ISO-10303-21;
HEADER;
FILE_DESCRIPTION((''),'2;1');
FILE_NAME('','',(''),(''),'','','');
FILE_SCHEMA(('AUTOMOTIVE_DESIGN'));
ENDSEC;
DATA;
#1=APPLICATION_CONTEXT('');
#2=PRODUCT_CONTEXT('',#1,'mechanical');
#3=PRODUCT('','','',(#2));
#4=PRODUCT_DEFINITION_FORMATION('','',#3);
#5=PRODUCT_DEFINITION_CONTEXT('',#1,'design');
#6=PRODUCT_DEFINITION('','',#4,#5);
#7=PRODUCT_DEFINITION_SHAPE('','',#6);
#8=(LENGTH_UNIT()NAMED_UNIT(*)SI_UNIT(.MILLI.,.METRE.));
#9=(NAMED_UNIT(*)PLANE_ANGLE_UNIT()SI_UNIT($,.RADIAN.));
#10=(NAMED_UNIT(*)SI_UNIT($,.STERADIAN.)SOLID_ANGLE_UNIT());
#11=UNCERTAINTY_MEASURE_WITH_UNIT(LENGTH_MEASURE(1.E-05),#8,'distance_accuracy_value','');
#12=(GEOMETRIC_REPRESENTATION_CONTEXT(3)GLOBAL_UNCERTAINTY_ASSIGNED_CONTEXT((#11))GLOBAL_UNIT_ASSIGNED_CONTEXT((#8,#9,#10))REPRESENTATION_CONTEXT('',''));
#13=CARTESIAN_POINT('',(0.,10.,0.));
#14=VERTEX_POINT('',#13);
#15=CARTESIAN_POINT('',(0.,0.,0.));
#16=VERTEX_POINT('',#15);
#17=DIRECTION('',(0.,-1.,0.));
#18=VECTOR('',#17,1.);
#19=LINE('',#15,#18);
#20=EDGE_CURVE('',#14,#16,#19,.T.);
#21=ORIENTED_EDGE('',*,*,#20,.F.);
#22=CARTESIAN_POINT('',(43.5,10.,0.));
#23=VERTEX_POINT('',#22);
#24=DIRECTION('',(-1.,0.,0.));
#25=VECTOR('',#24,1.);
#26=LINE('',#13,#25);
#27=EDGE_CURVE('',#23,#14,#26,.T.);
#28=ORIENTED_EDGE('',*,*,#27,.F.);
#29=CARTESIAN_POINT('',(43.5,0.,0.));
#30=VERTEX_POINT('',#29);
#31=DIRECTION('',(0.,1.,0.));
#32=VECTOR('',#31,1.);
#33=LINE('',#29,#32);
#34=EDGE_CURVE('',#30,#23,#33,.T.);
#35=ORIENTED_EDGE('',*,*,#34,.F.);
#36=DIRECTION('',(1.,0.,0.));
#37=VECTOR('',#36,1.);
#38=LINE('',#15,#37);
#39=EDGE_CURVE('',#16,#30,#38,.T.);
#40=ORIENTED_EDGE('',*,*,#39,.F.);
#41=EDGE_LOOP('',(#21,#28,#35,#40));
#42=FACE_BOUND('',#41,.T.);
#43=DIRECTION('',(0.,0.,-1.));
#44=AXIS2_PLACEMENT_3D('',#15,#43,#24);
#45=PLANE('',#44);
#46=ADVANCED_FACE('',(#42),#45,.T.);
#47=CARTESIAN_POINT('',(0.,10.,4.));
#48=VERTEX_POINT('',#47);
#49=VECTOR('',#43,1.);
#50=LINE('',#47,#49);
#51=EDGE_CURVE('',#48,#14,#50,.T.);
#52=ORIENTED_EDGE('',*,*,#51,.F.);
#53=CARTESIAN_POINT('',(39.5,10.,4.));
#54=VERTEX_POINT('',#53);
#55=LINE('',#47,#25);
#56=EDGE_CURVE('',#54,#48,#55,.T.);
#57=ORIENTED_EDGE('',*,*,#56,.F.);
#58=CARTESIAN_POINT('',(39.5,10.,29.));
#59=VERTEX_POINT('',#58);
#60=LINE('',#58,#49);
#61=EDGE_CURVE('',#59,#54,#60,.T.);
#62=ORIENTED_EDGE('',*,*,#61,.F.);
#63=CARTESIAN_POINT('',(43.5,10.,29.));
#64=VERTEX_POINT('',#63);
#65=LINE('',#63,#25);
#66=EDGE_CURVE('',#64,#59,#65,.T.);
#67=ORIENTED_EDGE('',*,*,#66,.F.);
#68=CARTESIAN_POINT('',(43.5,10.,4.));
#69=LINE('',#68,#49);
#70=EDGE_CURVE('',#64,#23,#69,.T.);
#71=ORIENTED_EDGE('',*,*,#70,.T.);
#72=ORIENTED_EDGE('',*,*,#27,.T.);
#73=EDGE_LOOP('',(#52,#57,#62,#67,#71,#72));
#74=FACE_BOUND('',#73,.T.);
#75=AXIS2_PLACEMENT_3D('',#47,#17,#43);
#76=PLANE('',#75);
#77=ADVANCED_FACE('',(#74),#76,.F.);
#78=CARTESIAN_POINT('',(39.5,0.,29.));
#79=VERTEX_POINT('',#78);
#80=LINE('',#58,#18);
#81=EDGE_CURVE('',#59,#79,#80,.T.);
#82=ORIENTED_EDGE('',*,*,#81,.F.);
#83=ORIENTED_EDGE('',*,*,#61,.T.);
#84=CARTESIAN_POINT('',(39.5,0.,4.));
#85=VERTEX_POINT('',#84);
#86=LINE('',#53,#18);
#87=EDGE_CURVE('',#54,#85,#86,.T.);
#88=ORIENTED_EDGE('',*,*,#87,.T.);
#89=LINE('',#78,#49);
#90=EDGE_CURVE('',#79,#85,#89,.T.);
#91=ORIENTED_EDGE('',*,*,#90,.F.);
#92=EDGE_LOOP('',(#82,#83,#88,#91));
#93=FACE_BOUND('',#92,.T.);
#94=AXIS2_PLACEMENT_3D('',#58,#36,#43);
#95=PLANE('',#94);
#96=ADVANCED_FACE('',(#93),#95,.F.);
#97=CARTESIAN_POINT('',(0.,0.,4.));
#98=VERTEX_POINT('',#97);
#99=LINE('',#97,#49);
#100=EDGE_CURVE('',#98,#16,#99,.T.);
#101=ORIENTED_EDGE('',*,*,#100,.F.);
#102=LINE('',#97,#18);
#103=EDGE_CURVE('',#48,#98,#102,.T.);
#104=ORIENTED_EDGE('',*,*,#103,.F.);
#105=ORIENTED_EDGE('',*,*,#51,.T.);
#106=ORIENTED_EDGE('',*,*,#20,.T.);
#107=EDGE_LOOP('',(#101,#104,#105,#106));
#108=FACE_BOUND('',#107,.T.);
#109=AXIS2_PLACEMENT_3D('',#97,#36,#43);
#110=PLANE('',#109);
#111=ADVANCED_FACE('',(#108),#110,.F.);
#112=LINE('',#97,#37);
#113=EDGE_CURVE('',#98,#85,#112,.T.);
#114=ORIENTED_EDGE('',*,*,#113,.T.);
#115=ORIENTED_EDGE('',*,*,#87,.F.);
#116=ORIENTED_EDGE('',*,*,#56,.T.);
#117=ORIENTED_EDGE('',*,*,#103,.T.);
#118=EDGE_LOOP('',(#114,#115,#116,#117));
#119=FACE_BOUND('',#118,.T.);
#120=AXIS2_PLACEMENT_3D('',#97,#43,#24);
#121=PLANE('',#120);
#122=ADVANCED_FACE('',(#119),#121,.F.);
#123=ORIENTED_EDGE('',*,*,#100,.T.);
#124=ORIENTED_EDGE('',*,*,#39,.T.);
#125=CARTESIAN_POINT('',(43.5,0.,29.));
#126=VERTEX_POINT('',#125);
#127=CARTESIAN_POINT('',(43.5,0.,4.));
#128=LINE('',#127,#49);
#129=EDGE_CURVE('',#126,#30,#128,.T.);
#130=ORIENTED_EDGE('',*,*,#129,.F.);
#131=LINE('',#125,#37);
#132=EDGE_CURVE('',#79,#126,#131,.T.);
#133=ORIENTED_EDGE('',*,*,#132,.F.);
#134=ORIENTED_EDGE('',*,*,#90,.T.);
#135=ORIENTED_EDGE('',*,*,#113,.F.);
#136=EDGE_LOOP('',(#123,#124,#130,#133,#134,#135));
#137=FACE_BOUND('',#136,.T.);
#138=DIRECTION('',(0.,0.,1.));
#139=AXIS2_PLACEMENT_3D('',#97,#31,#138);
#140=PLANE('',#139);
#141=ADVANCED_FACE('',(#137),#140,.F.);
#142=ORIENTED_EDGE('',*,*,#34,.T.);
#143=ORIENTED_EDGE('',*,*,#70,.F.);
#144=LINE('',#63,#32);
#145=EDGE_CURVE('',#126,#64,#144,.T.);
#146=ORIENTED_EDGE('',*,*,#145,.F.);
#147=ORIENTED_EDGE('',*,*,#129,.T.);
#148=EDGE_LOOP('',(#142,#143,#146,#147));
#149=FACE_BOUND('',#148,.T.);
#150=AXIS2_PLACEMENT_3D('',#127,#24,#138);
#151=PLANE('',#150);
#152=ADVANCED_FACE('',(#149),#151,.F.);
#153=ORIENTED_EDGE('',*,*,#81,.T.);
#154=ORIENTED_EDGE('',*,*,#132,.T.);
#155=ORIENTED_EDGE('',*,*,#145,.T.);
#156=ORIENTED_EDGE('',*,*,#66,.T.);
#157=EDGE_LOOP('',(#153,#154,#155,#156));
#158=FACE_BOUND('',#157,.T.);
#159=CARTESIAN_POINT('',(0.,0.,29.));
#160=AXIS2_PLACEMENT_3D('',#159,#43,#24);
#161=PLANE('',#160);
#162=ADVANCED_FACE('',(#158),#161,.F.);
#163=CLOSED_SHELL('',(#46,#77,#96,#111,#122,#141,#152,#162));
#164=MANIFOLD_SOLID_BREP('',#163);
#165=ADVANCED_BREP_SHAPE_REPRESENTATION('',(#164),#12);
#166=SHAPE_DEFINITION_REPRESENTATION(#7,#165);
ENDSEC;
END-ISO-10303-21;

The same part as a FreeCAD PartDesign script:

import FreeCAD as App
import Part
import Sketcher
from FreeCAD import Vector

doc = App.newDocument("Part")
params = doc.addObject("Spreadsheet::Sheet", "Params")
for row, (alias, value) in enumerate([
    ("sketch1_height", "10 mm"),
    ("sketch1_width", "43.5 mm"),
    ("pad1_length", "4 mm"),
    ("sketch2_width", "4 mm"),
    ("sketch2_height", "10 mm"),
    ("pad2_length", "25 mm"),
], start=1):
    params.set(f"A{row}", alias)
    params.set(f"B{row}", "=" + value)
    params.setAlias(f"B{row}", alias)

body = doc.addObject("PartDesign::Body", "Body")

sketch1 = doc.addObject("Sketcher::SketchObject", "Sketch")
body.addObject(sketch1)
sketch1.AttachmentSupport = (doc.XY_Plane, [""])
sketch1.MapMode = "FlatFace"
sketch1.addGeometry([
    Part.LineSegment(Vector(0, 10, 0), Vector(0, 0, 0)),
    Part.LineSegment(Vector(0, 0, 0), Vector(44, 0, 0)),
    Part.LineSegment(Vector(44, 0, 0), Vector(44, 10, 0)),
    Part.LineSegment(Vector(44, 10, 0), Vector(0, 10, 0)),
], False)
sketch1.addConstraint([
    Sketcher.Constraint("Coincident", 0, 2, 1, 1),
    Sketcher.Constraint("Coincident", 1, 2, 2, 1),
    Sketcher.Constraint("Coincident", 2, 2, 3, 1),
    Sketcher.Constraint("Coincident", 3, 2, 0, 1),
    Sketcher.Constraint("Vertical", 0),
    Sketcher.Constraint("Horizontal", 1),
    Sketcher.Constraint("Vertical", 2),
    Sketcher.Constraint("Horizontal", 3),
    Sketcher.Constraint("Coincident", 0, 2, -1, 1),
    Sketcher.Constraint("DistanceY", 0, 2, 0, 1, 10.0),
    Sketcher.Constraint("DistanceX", 1, 1, 1, 2, 43.5),
])
sketch1.setExpression("Constraints[9]", "Params.sketch1_height")
sketch1.setExpression("Constraints[10]", "Params.sketch1_width")
pad1 = doc.addObject("PartDesign::Pad", "Pad")
body.addObject(pad1)
pad1.Profile = sketch1
pad1.setExpression("Length", "Params.pad1_length")

sketch2 = doc.addObject("Sketcher::SketchObject", "Sketch001")
body.addObject(sketch2)
sketch2.AttachmentSupport = (doc.XY_Plane, [""])
sketch2.MapMode = "FlatFace"
sketch2.AttachmentOffset = App.Placement(Vector(0, 0, 4), App.Rotation())
sketch2.addGeometry([
    Part.LineSegment(Vector(39.5, 10, 0), Vector(39.5, 0, 0)),
    Part.LineSegment(Vector(39.5, 0, 0), Vector(43.5, 0, 0)),
    Part.LineSegment(Vector(43.5, 0, 0), Vector(43.5, 10, 0)),
    Part.LineSegment(Vector(43.5, 10, 0), Vector(39.5, 10, 0)),
], False)
sketch2.addConstraint([
    Sketcher.Constraint("Coincident", 0, 2, 1, 1),
    Sketcher.Constraint("Coincident", 1, 2, 2, 1),
    Sketcher.Constraint("Coincident", 2, 2, 3, 1),
    Sketcher.Constraint("Coincident", 3, 2, 0, 1),
    Sketcher.Constraint("Vertical", 0),
    Sketcher.Constraint("Horizontal", 1),
    Sketcher.Constraint("Vertical", 2),
    Sketcher.Constraint("Horizontal", 3),
    Sketcher.Constraint("PointOnObject", 0, 2, -1),
    Sketcher.Constraint("DistanceX", 1, 1, 1, 2, 4.0),
    Sketcher.Constraint("DistanceY", 0, 2, 0, 1, 10.0),
    Sketcher.Constraint("DistanceX", -1, 1, 0, 2, 39.5),
])
sketch2.setExpression("Constraints[9]", "Params.sketch2_width")
sketch2.setExpression("Constraints[10]", "Params.sketch2_height")
pad2 = doc.addObject("PartDesign::Pad", "Pad001")
body.addObject(pad2)
pad2.Profile = sketch2
pad2.setExpression("Length", "Params.pad2_length")

doc.recompute()
